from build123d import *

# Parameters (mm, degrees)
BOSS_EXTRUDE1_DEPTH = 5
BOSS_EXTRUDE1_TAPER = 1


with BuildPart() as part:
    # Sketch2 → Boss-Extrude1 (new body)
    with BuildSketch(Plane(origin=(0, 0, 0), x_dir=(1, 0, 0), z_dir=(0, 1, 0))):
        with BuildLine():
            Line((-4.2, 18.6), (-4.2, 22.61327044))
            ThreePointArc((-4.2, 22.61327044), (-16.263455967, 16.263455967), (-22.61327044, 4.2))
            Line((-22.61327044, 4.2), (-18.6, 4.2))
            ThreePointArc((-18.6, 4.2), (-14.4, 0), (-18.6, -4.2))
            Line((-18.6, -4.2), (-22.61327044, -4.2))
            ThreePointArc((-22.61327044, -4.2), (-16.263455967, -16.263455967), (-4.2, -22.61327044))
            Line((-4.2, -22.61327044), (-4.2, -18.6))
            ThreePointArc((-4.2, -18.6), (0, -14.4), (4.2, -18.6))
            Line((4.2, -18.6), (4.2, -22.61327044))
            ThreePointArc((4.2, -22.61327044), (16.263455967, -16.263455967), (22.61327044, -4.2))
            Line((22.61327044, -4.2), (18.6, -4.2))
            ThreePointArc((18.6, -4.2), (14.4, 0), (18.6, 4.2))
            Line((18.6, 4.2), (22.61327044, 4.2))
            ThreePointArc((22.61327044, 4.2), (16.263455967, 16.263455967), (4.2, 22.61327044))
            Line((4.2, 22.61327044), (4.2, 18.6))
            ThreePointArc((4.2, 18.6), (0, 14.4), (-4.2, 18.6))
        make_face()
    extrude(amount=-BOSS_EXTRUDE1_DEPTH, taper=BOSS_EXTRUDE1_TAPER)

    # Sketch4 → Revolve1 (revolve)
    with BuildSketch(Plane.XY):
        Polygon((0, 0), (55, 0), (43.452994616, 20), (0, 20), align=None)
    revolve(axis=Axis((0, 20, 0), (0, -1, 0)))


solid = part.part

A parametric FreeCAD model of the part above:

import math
import FreeCAD as App
import Part
import Sketcher

V = App.Vector
Q = App.Units.Quantity


def add_polygon(sketch, points):
    """Adds a closed chain of lines whose ends are joined by coincident constraints."""
    first, n = sketch.GeometryCount, len(points)
    for a, b in zip(points, points[1:] + points[:1]):
        sketch.addGeometry(Part.LineSegment(App.Vector(*a, 0), App.Vector(*b, 0)), False)
    for i in range(n):
        sketch.addConstraint(Sketcher.Constraint("Coincident", first + i, 2, first + (i + 1) % n, 1))

doc = App.newDocument("Part")
body = doc.addObject("PartDesign::Body", "Body")

# Sketch on XZ plane
sketch1 = body.newObject("Sketcher::SketchObject", "Sketch")
sketch1.AttachmentSupport = (doc.getObject("XZ_Plane"), [""])
sketch1.MapMode = "FlatFace"
sketch1.addGeometry([
    Part.LineSegment(V(-4.2, -18.6, 0), V(-4.2, -22.6, 0)),  # 0
    Part.ArcOfCircle(Part.Circle(V(0, 0, 0), V(0, 0, 1), 23), math.radians(-169), math.radians(-101)),  # 1
    Part.LineSegment(V(-22.6, -4.2, 0), V(-18.6, -4.2, 0)),  # 2
    Part.ArcOfCircle(Part.Circle(V(-18.6, 0, 0), V(0, 0, 1), 4.2), math.radians(-90), math.radians(90)),  # 3
    Part.LineSegment(V(-18.6, 4.2, 0), V(-22.6, 4.2, 0)),  # 4
    Part.ArcOfCircle(Part.Circle(V(0, 0, 0), V(0, 0, 1), 23), math.radians(101), math.radians(169)),  # 5
    Part.LineSegment(V(-4.2, 22.6, 0), V(-4.2, 18.6, 0)),  # 6
    Part.ArcOfCircle(Part.Circle(V(0, 18.6, 0), V(0, 0, 1), 4.2), math.radians(180), math.radians(360)),  # 7
    Part.LineSegment(V(4.2, 18.6, 0), V(4.2, 22.6, 0)),  # 8
    Part.ArcOfCircle(Part.Circle(V(0, 0, 0), V(0, 0, 1), 23), math.radians(11), math.radians(79)),  # 9
    Part.LineSegment(V(22.6, 4.2, 0), V(18.6, 4.2, 0)),  # 10
    Part.ArcOfCircle(Part.Circle(V(18.6, 0, 0), V(0, 0, 1), 4.2), math.radians(90), math.radians(270)),  # 11
    Part.LineSegment(V(18.6, -4.2, 0), V(22.6, -4.2, 0)),  # 12
    Part.ArcOfCircle(Part.Circle(V(0, 0, 0), V(0, 0, 1), 23), math.radians(-79), math.radians(-11)),  # 13
    Part.LineSegment(V(4.2, -22.6, 0), V(4.2, -18.6, 0)),  # 14
    Part.ArcOfCircle(Part.Circle(V(0, -18.6, 0), V(0, 0, 1), 4.2), math.radians(0), math.radians(180)),  # 15
], False)
sketch1.addConstraint([
    Sketcher.Constraint("Coincident", 0, 2, 1, 2),
    Sketcher.Constraint("Coincident", 1, 1, 2, 1),
    Sketcher.Constraint("Tangent", 2, 2, 3, 1),
    Sketcher.Constraint("Tangent", 3, 2, 4, 1),
    Sketcher.Constraint("Coincident", 4, 2, 5, 2),
    Sketcher.Constraint("Coincident", 5, 1, 6, 1),
    Sketcher.Constraint("Tangent", 6, 2, 7, 1),
    Sketcher.Constraint("Tangent", 7, 2, 8, 1),
    Sketcher.Constraint("Coincident", 8, 2, 9, 2),
    Sketcher.Constraint("Coincident", 9, 1, 10, 1),
    Sketcher.Constraint("Tangent", 10, 2, 11, 1),
    Sketcher.Constraint("Tangent", 11, 2, 12, 1),
    Sketcher.Constraint("Coincident", 12, 2, 13, 2),
    Sketcher.Constraint("Coincident", 13, 1, 14, 1),
    Sketcher.Constraint("Tangent", 14, 2, 15, 1),
    Sketcher.Constraint("Tangent", 15, 2, 0, 1),
    Sketcher.Constraint("Vertical", 0),
    Sketcher.Constraint("Horizontal", 2),
    Sketcher.Constraint("Horizontal", 4),
    Sketcher.Constraint("Vertical", 6),
    Sketcher.Constraint("Vertical", 8),
    Sketcher.Constraint("Horizontal", 10),
    Sketcher.Constraint("Horizontal", 12),
    Sketcher.Constraint("Vertical", 14),
    Sketcher.Constraint("Coincident", 1, 3, -1, 1),
    Sketcher.Constraint("Coincident", 5, 3, -1, 1),
    Sketcher.Constraint("Coincident", 9, 3, -1, 1),
    Sketcher.Constraint("Coincident", 13, 3, -1, 1),
    Sketcher.Constraint("Equal", 1, 5),
    Sketcher.Constraint("Equal", 3, 7),
    Sketcher.Constraint("Equal", 5, 9),
    Sketcher.Constraint("Equal", 7, 11),
    Sketcher.Constraint("Equal", 9, 13),
    Sketcher.Constraint("Equal", 11, 15),
    Sketcher.Constraint("Symmetric", 3, 3, 11, 3, -1, 1),
    Sketcher.Constraint("Symmetric", 7, 3, 15, 3, -1, 1),
    Sketcher.Constraint("PointOnObject", 3, 3, -1),
    Sketcher.Constraint("PointOnObject", 7, 3, -2),
    Sketcher.Constraint("Equal", 12, 0),
    Sketcher.Constraint("Radius", 1, Q("23 mm")),
    Sketcher.Constraint("Radius", 3, Q("4.2 mm")),
    Sketcher.Constraint("DistanceX", 3, 3, -1, 1, Q("18.6 mm")),
])
pad1 = body.newObject("PartDesign::Pad", "Pad")
pad1.Profile = sketch1
pad1.Length = 5
pad1.TaperAngle = -1

# Sketch on XY plane
sketch2 = body.newObject("Sketcher::SketchObject", "Sketch001")
sketch2.AttachmentSupport = (doc.getObject("XY_Plane"), [""])
sketch2.MapMode = "FlatFace"
add_polygon(sketch2, [(0, 0), (55, 0), (43, 20), (0, 20)])  # lines 0-3
sketch2.addConstraint([
    Sketcher.Constraint("Horizontal", 0),
    Sketcher.Constraint("Horizontal", 2),
    Sketcher.Constraint("Vertical", 3),
    Sketcher.Constraint("Coincident", 3, 2, -1, 1),
    Sketcher.Constraint("DistanceX", 0, 1, 0, 2, Q("55 mm")),
    Sketcher.Constraint("DistanceY", 3, 2, 3, 1, Q("20 mm")),
    Sketcher.Constraint("Angle", 1, Q("120 deg")),
])
revolution = body.newObject("PartDesign::Revolution", "Revolution")
revolution.Profile = sketch2
revolution.ReferenceAxis = (sketch2, ["V_Axis"])
revolution.Angle = 360

doc.recompute()
